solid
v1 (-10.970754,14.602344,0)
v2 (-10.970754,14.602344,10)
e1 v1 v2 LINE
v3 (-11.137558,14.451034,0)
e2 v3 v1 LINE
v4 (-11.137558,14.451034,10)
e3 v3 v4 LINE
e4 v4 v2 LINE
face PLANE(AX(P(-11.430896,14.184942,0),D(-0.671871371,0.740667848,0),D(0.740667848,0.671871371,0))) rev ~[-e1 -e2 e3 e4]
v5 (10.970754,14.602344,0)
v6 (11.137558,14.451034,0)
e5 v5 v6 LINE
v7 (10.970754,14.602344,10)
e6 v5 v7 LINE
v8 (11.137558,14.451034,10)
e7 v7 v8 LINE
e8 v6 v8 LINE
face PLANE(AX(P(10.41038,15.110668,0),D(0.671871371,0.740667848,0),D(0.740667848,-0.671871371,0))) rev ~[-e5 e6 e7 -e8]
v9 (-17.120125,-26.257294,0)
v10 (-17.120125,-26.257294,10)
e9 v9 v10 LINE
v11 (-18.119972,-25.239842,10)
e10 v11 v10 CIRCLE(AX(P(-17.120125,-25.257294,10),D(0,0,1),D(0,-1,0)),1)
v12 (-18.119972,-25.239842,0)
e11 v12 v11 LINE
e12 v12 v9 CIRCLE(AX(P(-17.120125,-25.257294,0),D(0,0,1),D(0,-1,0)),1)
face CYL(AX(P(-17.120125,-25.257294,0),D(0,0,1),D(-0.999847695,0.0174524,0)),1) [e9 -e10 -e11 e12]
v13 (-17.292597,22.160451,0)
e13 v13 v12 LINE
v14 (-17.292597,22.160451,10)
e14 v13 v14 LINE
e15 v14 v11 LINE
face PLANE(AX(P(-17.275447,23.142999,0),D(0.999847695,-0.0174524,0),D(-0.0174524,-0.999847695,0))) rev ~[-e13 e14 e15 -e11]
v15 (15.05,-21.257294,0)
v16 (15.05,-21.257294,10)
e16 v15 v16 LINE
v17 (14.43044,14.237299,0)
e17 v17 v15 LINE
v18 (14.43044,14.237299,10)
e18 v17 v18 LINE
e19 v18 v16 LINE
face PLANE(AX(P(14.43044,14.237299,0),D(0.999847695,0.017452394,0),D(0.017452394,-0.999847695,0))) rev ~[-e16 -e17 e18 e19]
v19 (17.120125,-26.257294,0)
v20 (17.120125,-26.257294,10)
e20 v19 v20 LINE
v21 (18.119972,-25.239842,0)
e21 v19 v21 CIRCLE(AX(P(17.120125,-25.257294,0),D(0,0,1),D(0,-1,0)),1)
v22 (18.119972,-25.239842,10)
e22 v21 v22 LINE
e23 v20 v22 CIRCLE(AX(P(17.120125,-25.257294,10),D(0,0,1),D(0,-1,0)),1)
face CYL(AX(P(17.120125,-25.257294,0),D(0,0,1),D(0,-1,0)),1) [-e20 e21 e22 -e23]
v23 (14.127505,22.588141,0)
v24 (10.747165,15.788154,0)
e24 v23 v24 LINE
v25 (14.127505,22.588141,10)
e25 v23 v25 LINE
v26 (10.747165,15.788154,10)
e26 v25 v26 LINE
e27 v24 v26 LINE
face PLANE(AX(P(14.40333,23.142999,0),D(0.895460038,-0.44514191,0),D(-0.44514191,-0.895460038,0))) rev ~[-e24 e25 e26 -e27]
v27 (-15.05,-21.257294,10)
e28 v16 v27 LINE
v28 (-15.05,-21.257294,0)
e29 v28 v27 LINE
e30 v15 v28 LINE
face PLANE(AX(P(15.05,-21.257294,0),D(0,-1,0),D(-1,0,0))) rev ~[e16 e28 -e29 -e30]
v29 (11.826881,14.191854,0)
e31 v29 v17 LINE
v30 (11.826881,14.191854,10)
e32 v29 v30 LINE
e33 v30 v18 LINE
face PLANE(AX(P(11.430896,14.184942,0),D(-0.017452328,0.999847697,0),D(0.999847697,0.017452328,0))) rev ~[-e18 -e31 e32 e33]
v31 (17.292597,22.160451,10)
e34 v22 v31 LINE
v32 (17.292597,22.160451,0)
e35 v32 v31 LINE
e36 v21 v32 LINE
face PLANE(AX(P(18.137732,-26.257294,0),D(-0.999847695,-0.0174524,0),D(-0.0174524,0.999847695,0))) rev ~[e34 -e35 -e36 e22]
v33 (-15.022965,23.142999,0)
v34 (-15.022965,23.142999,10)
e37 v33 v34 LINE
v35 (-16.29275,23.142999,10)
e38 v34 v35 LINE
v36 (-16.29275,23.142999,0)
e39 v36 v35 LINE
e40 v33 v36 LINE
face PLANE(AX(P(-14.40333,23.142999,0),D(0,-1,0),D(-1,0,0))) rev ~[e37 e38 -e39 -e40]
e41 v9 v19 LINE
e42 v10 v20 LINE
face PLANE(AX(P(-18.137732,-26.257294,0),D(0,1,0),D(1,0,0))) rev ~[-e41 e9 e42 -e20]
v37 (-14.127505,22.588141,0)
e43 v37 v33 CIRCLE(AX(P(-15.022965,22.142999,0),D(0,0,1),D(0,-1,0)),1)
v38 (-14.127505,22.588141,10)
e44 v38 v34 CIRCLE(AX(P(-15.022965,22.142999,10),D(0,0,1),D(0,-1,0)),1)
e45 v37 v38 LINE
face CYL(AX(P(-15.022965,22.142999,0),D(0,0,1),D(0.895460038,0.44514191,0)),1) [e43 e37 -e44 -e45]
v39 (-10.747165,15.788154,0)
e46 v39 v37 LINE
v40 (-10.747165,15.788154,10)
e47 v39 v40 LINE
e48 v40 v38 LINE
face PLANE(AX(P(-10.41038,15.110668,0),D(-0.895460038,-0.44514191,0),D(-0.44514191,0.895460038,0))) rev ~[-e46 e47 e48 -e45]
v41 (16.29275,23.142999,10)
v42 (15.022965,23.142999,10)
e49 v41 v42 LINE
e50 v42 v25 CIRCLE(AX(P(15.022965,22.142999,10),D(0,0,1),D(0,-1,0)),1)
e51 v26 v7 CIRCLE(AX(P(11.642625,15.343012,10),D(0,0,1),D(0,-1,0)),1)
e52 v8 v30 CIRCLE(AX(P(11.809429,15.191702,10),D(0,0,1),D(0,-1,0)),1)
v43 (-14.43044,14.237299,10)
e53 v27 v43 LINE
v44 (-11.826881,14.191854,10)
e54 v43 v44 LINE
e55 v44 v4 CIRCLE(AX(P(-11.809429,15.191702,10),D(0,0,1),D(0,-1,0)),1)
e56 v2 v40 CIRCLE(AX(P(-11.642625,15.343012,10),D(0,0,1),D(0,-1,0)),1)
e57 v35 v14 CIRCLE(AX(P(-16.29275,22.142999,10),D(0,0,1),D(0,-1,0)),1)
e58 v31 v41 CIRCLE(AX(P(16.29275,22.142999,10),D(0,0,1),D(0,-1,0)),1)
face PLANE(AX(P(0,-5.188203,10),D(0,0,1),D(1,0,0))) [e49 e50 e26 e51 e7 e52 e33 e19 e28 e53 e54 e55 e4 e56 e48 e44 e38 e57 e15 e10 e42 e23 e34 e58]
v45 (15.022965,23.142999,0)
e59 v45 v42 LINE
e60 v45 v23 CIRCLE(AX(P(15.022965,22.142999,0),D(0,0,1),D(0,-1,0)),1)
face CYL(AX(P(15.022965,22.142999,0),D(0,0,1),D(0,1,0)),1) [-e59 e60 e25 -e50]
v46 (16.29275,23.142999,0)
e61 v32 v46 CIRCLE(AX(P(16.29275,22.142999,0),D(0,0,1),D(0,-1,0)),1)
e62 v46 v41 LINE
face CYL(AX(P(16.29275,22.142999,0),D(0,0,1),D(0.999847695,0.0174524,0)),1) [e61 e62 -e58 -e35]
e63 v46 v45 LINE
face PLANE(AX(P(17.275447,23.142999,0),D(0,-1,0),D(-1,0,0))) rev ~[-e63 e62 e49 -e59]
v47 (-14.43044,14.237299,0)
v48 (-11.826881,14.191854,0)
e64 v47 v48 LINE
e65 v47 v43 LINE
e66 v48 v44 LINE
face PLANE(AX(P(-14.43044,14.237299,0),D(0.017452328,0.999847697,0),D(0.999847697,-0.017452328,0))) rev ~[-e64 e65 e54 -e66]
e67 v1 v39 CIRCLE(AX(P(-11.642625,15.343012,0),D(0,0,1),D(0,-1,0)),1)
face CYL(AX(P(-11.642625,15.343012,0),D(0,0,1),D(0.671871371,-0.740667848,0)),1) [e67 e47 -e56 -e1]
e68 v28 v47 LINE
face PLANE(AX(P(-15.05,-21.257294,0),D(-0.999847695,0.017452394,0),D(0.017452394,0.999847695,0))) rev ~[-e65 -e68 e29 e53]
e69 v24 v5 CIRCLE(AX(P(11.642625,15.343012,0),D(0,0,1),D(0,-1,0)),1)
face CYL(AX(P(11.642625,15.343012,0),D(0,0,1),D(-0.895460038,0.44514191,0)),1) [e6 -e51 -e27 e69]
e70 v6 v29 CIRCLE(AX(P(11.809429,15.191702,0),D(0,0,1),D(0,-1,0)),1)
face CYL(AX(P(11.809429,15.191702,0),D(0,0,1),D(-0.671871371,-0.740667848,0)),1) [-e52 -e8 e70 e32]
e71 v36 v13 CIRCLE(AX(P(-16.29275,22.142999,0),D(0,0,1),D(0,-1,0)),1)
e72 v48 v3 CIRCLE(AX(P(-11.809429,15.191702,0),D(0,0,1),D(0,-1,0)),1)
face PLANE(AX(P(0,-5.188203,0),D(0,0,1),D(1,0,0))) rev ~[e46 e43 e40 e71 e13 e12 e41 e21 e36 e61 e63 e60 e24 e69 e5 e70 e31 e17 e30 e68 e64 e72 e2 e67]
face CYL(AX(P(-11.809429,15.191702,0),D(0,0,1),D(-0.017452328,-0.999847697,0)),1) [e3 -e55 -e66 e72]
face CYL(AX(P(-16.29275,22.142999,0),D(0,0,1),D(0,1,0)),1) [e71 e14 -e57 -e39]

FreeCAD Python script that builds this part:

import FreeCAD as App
import Part
import Sketcher
Q = App.Units.Quantity


def edges_at(feature, points):
    """Names of the edges that pass closest to the given points."""
    edges = feature.Shape.Edges
    near = lambda p: min(range(len(edges)), key=lambda i: edges[i].distToShape(Part.Vertex(*p))[0])
    return sorted({f"Edge{near(p) + 1}" for p in points})

doc = App.newDocument("Part")
body = doc.addObject("PartDesign::Body", "Body")

sketch1 = body.newObject("Sketcher::SketchObject", "Sketch")
sketch1.AttachmentSupport = (doc.getObject("XY_Plane"), [""])
sketch1.MapMode = "FlatFace"
sketch1.addGeometry([
    Part.LineSegment(App.Vector(15.1, -21.3, 0), App.Vector(-15.1, -21.3, 0)),
    Part.LineSegment(App.Vector(-15.1, -21.3, 0), App.Vector(-14.4, 14.2, 0)),
    Part.LineSegment(App.Vector(-14.4, 14.2, 0), App.Vector(-11.4, 14.2, 0)),
    Part.LineSegment(App.Vector(-11.4, 14.2, 0), App.Vector(-10.4, 15.1, 0)),
    Part.LineSegment(App.Vector(-10.4, 15.1, 0), App.Vector(-14.4, 23.1, 0)),
    Part.LineSegment(App.Vector(-14.4, 23.1, 0), App.Vector(-17.3, 23.1, 0)),
    Part.LineSegment(App.Vector(-17.3, 23.1, 0), App.Vector(-18.1, -26.3, 0)),
    Part.LineSegment(App.Vector(-18.1, -26.3, 0), App.Vector(18.1, -26.3, 0)),
    Part.LineSegment(App.Vector(18.1, -26.3, 0), App.Vector(17.3, 23.1, 0)),
    Part.LineSegment(App.Vector(17.3, 23.1, 0), App.Vector(14.4, 23.1, 0)),
    Part.LineSegment(App.Vector(14.4, 23.1, 0), App.Vector(10.4, 15.1, 0)),
    Part.LineSegment(App.Vector(10.4, 15.1, 0), App.Vector(11.4, 14.2, 0)),
    Part.LineSegment(App.Vector(11.4, 14.2, 0), App.Vector(14.4, 14.2, 0)),
    Part.LineSegment(App.Vector(14.4, 14.2, 0), App.Vector(15.1, -21.3, 0)),
], False)
sketch1.addConstraint([
    Sketcher.Constraint("Coincident", 0, 2, 1, 1),
    Sketcher.Constraint("Coincident", 1, 2, 2, 1),
    Sketcher.Constraint("Coincident", 2, 2, 3, 1),
    Sketcher.Constraint("Coincident", 3, 2, 4, 1),
    Sketcher.Constraint("Coincident", 4, 2, 5, 1),
    Sketcher.Constraint("Coincident", 5, 2, 6, 1),
    Sketcher.Constraint("Coincident", 6, 2, 7, 1),
    Sketcher.Constraint("Coincident", 7, 2, 8, 1),
    Sketcher.Constraint("Coincident", 8, 2, 9, 1),
    Sketcher.Constraint("Coincident", 9, 2, 10, 1),
    Sketcher.Constraint("Coincident", 10, 2, 11, 1),
    Sketcher.Constraint("Coincident", 11, 2, 12, 1),
    Sketcher.Constraint("Coincident", 12, 2, 13, 1),
    Sketcher.Constraint("Coincident", 13, 2, 0, 1),
    Sketcher.Constraint("Horizontal", 0),
    Sketcher.Constraint("Horizontal", 5),
    Sketcher.Constraint("Horizontal", 7),
    Sketcher.Constraint("Horizontal", 9),
    Sketcher.Constraint("Symmetric", 5, 2, 8, 2, -2),
    Sketcher.Constraint("Symmetric", 3, 2, 10, 2, -2),
    Sketcher.Constraint("Symmetric", 2, 2, 11, 2, -2),
    Sketcher.Constraint("Symmetric", 1, 2, 12, 2, -2),
    Sketcher.Constraint("Perpendicular", 1, 2),
    Sketcher.Constraint("Perpendicular", 2, 6),
    Sketcher.Constraint("Perpendicular", 8, 12),
    Sketcher.Constraint("Perpendicular", 12, 13),
    Sketcher.Constraint("Equal", 5, 9),
    Sketcher.Constraint("Angle", 1, Q("89.000001 deg")),
    Sketcher.Constraint("Distance", 2, 3.000001),
    Sketcher.Constraint("DistanceX", 0, 2, 0, 1, 30.1),
    Sketcher.Constraint("DistanceY", 6, 2, 0, 2, 5.0),
    Sketcher.Constraint("Distance", 1, 35.5),
    Sketcher.Constraint("DistanceY", -1, 1, 4, 2, 23.142999),
    Sketcher.Constraint("DistanceY", -1, 1, 1, 2, 14.237299),
    Sketcher.Constraint("Distance", 4, 8.970061),
    Sketcher.Constraint("DistanceX", 5, 2, 5, 1, 2.872117),
    Sketcher.Constraint("DistanceX", 7, 1, 7, 2, 36.275464),
    Sketcher.Constraint("DistanceX", 3, 2, -1, 1, 10.41038),
])
pad1 = body.newObject("PartDesign::Pad", "Pad")
pad1.Profile = sketch1
pad1.Length = 10
doc.recompute()

fillet = body.newObject("PartDesign::Fillet", "Fillet")
fillet.Base = (pad1, edges_at(pad1, [
    (-10.41, 15.111, 5),
    (10.41, 15.111, 5),
    (-11.431, 14.185, 5),
    (11.431, 14.185, 5),
    (-17.275, 23.143, 5),
    (-14.403, 23.143, 5),
    (-18.138, -26.257, 5),
    (18.138, -26.257, 5),
    (17.275, 23.143, 5),
    (14.403, 23.143, 5),
]))
fillet.Radius = 1

doc.recompute()
